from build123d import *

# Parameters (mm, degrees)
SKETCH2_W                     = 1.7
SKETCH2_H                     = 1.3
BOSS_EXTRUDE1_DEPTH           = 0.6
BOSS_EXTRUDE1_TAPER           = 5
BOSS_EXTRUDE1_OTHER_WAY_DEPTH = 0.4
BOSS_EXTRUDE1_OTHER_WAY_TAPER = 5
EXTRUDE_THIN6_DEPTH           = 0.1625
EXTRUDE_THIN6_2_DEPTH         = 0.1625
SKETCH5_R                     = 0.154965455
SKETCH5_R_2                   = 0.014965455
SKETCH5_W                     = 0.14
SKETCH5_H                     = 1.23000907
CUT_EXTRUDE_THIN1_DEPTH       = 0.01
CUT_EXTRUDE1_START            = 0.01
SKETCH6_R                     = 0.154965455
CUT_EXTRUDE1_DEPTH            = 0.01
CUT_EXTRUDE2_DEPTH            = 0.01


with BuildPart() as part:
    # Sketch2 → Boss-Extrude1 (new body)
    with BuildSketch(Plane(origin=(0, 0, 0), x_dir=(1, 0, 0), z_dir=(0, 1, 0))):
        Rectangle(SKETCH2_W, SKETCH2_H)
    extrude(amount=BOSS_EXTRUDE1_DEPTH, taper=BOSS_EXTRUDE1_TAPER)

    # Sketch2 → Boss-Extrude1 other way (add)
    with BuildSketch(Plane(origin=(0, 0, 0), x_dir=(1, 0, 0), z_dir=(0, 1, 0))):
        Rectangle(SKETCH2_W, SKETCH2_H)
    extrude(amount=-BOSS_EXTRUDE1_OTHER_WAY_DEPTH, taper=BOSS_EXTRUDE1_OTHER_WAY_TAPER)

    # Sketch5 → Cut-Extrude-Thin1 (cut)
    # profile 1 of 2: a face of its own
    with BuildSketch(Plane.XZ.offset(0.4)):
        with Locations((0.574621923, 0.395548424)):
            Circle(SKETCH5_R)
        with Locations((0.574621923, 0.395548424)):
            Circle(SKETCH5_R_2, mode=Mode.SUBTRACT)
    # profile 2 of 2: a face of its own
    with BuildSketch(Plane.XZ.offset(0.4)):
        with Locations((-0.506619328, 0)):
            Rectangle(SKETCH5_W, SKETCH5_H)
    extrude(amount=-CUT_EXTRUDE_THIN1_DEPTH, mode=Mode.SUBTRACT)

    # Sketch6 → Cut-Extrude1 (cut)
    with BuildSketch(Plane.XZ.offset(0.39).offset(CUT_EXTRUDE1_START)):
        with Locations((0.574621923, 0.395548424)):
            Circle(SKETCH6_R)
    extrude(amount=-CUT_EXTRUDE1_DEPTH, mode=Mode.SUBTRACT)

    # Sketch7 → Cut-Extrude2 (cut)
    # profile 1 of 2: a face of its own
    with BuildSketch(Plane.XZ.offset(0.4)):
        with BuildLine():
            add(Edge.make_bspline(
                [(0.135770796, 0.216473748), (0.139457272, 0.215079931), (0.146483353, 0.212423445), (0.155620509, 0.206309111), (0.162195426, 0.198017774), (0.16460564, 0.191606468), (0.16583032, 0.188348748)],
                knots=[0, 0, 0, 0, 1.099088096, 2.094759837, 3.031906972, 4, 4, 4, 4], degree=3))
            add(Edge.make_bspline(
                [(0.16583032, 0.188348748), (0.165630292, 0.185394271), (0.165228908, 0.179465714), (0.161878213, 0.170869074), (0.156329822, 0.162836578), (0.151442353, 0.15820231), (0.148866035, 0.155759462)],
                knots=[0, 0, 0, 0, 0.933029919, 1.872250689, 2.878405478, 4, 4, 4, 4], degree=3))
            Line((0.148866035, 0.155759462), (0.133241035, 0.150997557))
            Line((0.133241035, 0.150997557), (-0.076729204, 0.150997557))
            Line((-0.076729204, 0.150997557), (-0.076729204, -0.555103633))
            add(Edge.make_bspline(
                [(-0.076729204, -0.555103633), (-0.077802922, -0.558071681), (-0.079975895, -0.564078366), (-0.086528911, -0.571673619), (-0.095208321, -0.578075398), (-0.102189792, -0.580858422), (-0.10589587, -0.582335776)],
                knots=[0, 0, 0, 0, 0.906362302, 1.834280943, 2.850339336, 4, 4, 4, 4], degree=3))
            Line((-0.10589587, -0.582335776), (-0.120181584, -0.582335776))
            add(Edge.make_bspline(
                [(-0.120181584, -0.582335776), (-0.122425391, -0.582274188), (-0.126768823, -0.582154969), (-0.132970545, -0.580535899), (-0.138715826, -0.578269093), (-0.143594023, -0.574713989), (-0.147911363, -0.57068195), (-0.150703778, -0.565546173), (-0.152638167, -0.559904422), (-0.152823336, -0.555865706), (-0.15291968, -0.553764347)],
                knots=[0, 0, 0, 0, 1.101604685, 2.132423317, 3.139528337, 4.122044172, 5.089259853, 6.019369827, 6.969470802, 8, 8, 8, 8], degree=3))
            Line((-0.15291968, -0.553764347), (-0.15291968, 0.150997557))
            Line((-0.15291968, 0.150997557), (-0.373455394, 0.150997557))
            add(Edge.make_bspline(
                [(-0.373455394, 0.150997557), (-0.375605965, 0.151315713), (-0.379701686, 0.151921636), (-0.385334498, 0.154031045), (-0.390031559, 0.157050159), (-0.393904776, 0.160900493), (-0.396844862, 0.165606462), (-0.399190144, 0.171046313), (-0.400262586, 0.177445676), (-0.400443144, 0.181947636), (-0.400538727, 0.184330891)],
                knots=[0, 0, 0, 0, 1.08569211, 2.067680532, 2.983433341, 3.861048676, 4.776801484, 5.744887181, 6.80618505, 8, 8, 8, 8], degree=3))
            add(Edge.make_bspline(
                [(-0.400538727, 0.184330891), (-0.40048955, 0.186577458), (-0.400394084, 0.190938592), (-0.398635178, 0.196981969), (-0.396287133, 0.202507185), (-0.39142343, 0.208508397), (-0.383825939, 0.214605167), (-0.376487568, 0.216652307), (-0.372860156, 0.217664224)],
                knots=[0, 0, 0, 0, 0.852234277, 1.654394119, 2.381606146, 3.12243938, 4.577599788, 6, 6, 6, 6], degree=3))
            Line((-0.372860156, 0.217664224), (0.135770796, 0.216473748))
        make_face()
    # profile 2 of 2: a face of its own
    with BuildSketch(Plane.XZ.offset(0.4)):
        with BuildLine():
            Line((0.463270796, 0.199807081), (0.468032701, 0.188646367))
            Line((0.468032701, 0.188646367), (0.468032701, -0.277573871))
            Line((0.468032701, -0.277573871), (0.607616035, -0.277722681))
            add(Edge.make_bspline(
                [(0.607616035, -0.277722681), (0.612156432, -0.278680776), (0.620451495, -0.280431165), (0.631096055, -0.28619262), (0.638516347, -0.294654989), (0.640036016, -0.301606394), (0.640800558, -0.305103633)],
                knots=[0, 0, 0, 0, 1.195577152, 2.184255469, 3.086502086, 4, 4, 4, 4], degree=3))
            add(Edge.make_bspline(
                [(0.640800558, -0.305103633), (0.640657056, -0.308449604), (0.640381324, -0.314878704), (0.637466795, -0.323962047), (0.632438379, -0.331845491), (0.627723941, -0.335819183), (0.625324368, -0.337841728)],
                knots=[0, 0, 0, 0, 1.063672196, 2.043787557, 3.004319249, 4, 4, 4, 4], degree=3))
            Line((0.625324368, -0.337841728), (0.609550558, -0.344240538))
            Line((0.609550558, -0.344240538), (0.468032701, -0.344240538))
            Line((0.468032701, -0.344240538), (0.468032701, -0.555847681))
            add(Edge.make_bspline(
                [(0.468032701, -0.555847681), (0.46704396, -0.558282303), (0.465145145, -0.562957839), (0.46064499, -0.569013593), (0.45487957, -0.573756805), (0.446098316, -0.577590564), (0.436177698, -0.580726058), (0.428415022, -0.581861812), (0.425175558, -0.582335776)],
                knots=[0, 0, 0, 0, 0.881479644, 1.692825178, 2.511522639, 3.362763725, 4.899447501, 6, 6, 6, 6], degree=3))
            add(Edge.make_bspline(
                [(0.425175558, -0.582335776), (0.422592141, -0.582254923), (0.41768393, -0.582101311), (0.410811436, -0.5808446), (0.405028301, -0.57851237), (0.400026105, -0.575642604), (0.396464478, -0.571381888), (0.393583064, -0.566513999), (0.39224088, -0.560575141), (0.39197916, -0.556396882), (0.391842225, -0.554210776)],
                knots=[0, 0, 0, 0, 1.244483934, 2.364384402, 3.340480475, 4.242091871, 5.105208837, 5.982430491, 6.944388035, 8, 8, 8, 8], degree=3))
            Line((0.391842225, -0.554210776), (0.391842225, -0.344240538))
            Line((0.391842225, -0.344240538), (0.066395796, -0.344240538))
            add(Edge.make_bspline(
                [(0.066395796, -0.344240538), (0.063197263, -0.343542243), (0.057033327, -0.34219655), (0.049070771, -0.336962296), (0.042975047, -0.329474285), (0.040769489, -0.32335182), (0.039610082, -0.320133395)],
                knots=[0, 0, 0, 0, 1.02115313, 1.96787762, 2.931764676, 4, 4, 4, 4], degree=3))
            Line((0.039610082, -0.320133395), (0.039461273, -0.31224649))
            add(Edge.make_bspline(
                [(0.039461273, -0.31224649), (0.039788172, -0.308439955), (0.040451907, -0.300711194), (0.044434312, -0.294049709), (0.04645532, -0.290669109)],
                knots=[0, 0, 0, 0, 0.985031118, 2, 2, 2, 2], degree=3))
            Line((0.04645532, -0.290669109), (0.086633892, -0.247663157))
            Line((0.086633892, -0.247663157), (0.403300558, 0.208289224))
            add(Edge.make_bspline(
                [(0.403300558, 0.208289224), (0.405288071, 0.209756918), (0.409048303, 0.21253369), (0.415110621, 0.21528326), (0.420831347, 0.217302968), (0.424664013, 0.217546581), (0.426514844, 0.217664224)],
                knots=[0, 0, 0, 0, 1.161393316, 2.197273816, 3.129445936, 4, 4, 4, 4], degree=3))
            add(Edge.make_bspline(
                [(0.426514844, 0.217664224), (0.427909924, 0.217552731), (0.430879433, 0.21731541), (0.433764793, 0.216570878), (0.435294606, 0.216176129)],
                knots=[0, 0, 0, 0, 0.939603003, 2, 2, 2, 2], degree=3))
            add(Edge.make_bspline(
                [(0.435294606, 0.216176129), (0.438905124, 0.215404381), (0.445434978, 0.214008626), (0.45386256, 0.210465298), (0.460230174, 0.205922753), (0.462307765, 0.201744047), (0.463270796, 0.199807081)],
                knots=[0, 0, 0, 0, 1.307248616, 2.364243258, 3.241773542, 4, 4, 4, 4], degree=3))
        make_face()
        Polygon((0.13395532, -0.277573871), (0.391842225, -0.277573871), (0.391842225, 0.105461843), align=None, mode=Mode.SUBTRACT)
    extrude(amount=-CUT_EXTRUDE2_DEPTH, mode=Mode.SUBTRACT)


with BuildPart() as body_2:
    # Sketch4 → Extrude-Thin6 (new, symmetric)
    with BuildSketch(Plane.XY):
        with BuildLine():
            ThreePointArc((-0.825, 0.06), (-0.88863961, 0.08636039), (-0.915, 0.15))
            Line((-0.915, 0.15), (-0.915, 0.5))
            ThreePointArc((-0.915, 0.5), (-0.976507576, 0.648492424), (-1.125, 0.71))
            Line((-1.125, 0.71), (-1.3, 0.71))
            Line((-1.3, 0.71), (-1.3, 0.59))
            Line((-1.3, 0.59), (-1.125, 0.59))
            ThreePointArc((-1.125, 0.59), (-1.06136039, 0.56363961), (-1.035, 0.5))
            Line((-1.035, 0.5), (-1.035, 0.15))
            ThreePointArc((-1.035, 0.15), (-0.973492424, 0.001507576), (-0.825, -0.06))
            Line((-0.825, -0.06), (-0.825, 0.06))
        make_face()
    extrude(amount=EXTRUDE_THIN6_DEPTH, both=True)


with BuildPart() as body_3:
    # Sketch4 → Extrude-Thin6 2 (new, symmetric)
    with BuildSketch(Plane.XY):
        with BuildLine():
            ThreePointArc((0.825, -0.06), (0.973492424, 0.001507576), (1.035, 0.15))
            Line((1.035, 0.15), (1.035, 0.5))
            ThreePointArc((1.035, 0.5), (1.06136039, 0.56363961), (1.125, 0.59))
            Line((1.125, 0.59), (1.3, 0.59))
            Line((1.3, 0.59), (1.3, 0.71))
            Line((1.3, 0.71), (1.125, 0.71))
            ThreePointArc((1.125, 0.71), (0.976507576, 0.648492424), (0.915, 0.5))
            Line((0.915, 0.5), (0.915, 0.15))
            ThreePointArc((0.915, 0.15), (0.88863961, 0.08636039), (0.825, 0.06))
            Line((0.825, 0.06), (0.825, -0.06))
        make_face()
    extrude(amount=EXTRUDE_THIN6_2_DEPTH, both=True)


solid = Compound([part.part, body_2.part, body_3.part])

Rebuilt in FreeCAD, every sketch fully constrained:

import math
import FreeCAD as App
import Part
import Sketcher

V = App.Vector
Q = App.Units.Quantity


def add_polygon(sketch, points):
    """Adds a closed chain of lines whose ends are joined by coincident constraints."""
    first, n = sketch.GeometryCount, len(points)
    for a, b in zip(points, points[1:] + points[:1]):
        sketch.addGeometry(Part.LineSegment(App.Vector(*a, 0), App.Vector(*b, 0)), False)
    for i in range(n):
        sketch.addConstraint(Sketcher.Constraint("Coincident", first + i, 2, first + (i + 1) % n, 1))

doc = App.newDocument("Part")
body = doc.addObject("PartDesign::Body", "Body")

# Sketch on XZ plane
sketch1 = body.newObject("Sketcher::SketchObject", "Sketch")
sketch1.AttachmentSupport = (doc.getObject("XZ_Plane"), [""])
sketch1.MapMode = "FlatFace"
add_polygon(sketch1, [(-0.85, -0.65), (-0.85, 0.65), (0.85, 0.65), (0.85, -0.65)])  # lines 0-3
sketch1.addConstraint([
    Sketcher.Constraint("Vertical", 0),
    Sketcher.Constraint("Horizontal", 1),
    Sketcher.Constraint("Vertical", 2),
    Sketcher.Constraint("Horizontal", 3),
    Sketcher.Constraint("Symmetric", 0, 2, 2, 2, -1, 1),
    Sketcher.Constraint("DistanceX", 1, 1, 1, 2, Q("1.7 mm")),
    Sketcher.Constraint("DistanceY", 0, 1, 0, 2, Q("1.3 mm")),
])
pad1 = body.newObject("PartDesign::Pad", "Pad")
pad1.Profile = sketch1
pad1.Length = 0.6
pad1.Reversed = True
pad1.TaperAngle = -5

# Sketch on XZ plane
sketch2 = body.newObject("Sketcher::SketchObject", "Sketch001")
sketch2.AttachmentSupport = (doc.getObject("XZ_Plane"), [""])
sketch2.MapMode = "FlatFace"
add_polygon(sketch2, [(-0.85, -0.65), (-0.85, 0.65), (0.85, 0.65), (0.85, -0.65)])  # lines 0-3
sketch2.addConstraint([
    Sketcher.Constraint("Vertical", 0),
    Sketcher.Constraint("Horizontal", 1),
    Sketcher.Constraint("Vertical", 2),
    Sketcher.Constraint("Horizontal", 3),
    Sketcher.Constraint("Symmetric", 0, 2, 2, 2, -1, 1),
    Sketcher.Constraint("DistanceX", 1, 1, 1, 2, Q("1.7 mm")),
    Sketcher.Constraint("DistanceY", 0, 1, 0, 2, Q("1.3 mm")),
])
pad2 = body.newObject("PartDesign::Pad", "Pad001")
pad2.Profile = sketch2
pad2.Length = 0.4
pad2.TaperAngle = -5

# Sketch on XZ plane
sketch3 = body.newObject("Sketcher::SketchObject", "Sketch002")
sketch3.AttachmentSupport = (doc.getObject("XZ_Plane"), [""])
sketch3.MapMode = "FlatFace"
sketch3.AttachmentOffset = App.Placement(V(0, 0, 0.4), App.Rotation())
sketch3.addGeometry(Part.Circle(V(0.574622, 0.395548, 0), V(0, 0, 1), 0.154965), False)  # 0
sketch3.addGeometry(Part.Circle(V(0.574622, 0.395548, 0), V(0, 0, 1), 0.014965), False)  # 1
add_polygon(sketch3, [(-0.576619, 0.615005), (-0.576619, -0.615005), (-0.436619, -0.615005), (-0.436619, 0.615005)])  # lines 2-5
sketch3.addConstraint([
    Sketcher.Constraint("Vertical", 2),
    Sketcher.Constraint("Horizontal", 3),
    Sketcher.Constraint("Vertical", 4),
    Sketcher.Constraint("Horizontal", 5),
    Sketcher.Constraint("Coincident", 1, 3, 0, 3),
    Sketcher.Constraint("DistanceX", 3, 1, 3, 2, Q("0.14 mm")),
    Sketcher.Constraint("Diameter", 0, Q("0.309931 mm")),
    Sketcher.Constraint("Diameter", 1, Q("0.029931 mm")),
    Sketcher.Constraint("DistanceY", 2, 2, 2, 1, Q("1.230009 mm")),
    Sketcher.Constraint("DistanceX", -1, 1, 0, 3, Q("0.574622 mm")),
    Sketcher.Constraint("DistanceY", -1, 1, 0, 3, Q("0.395548 mm")),
    Sketcher.Constraint("DistanceX", 2, 2, -1, 1, Q("0.576619 mm")),
    Sketcher.Constraint("DistanceY", 2, 2, -1, 1, Q("0.615005 mm")),
])
pocket1 = body.newObject("PartDesign::Pocket", "Pocket")
pocket1.Profile = sketch3
pocket1.Length = 0.01

# Sketch on XZ plane
sketch4 = body.newObject("Sketcher::SketchObject", "Sketch003")
sketch4.AttachmentSupport = (doc.getObject("XZ_Plane"), [""])
sketch4.MapMode = "FlatFace"
sketch4.AttachmentOffset = App.Placement(V(0, 0, 0.4), App.Rotation())
sketch4.addGeometry(Part.Circle(V(0.574622, 0.395548, 0), V(0, 0, 1), 0.154965), False)
sketch4.addConstraint([
    Sketcher.Constraint("Diameter", 0, Q("0.309931 mm")),
    Sketcher.Constraint("DistanceX", -1, 1, 0, 3, Q("0.574622 mm")),
    Sketcher.Constraint("DistanceY", -1, 1, 0, 3, Q("0.395548 mm")),
])
pocket2 = body.newObject("PartDesign::Pocket", "Pocket001")
pocket2.Profile = sketch4
pocket2.Length = 0.01

# Sketch on XZ plane
sketch5 = body.newObject("Sketcher::SketchObject", "Sketch004")
sketch5.AttachmentSupport = (doc.getObject("XZ_Plane"), [""])
sketch5.MapMode = "FlatFace"
sketch5.AttachmentOffset = App.Placement(V(0, 0, 0.4), App.Rotation())
sketch5.addGeometry(Part.BSplineCurve([V(0.135771, 0.216474, 0), V(0.139457, 0.21508, 0), V(0.146483, 0.212423, 0), V(0.155621, 0.206309, 0), V(0.162195, 0.198018, 0), V(0.164606, 0.191606, 0), V(0.16583, 0.188349, 0)], [4, 1, 1, 1, 4], [0, 1.099088096, 2.094759837, 3.031906972, 4], False, 3, [1, 1, 1, 1, 1, 1, 1], False), False)  # 0
sketch5.addGeometry(Part.LineSegment(V(0.135771, 0.216474, 0), V(-0.37286, 0.217664, 0)), False)  # 1
sketch5.addGeometry(Part.BSplineCurve([V(-0.400539, 0.184331, 0), V(-0.40049, 0.186577, 0), V(-0.400394, 0.190939, 0), V(-0.398635, 0.196982, 0), V(-0.396287, 0.202507, 0), V(-0.391423, 0.208508, 0), V(-0.383826, 0.214605, 0), V(-0.376488, 0.216652, 0), V(-0.37286, 0.217664, 0)], [4, 1, 1, 1, 1, 1, 4], [0, 0.852234277, 1.654394119, 2.381606146, 3.12243938, 4.577599788, 6], False, 3, [1, 1, 1, 1, 1, 1, 1, 1, 1], False), False)  # 2
sketch5.addGeometry(Part.BSplineCurve([V(-0.373455, 0.150998, 0), V(-0.375606, 0.151316, 0), V(-0.379702, 0.151922, 0), V(-0.385334, 0.154031, 0), V(-0.390032, 0.15705, 0), V(-0.393905, 0.1609, 0), V(-0.396845, 0.165606, 0), V(-0.39919, 0.171046, 0), V(-0.400263, 0.177446, 0), V(-0.400443, 0.181948, 0), V(-0.400539, 0.184331, 0)], [4, 1, 1, 1, 1, 1, 1, 1, 4], [0, 1.08569211, 2.067680532, 2.983433341, 3.861048676, 4.776801484, 5.744887181, 6.80618505, 8], False, 3, [1, 1, 1, 1, 1, 1, 1, 1, 1, 1, 1], False), False)  # 3
sketch5.addGeometry(Part.LineSegment(V(-0.373455, 0.150998, 0), V(-0.15292, 0.150998, 0)), False)  # 4
sketch5.addGeometry(Part.LineSegment(V(-0.15292, 0.150998, 0), V(-0.15292, -0.553764, 0)), False)  # 5
sketch5.addGeometry(Part.BSplineCurve([V(-0.120182, -0.582336, 0), V(-0.122425, -0.582274, 0), V(-0.126769, -0.582155, 0), V(-0.132971, -0.580536, 0), V(-0.138716, -0.578269, 0), V(-0.143594, -0.574714, 0), V(-0.147911, -0.570682, 0), V(-0.150704, -0.565546, 0), V(-0.152638, -0.559904, 0), V(-0.152823, -0.555866, 0), V(-0.15292, -0.553764, 0)], [4, 1, 1, 1, 1, 1, 1, 1, 4], [0, 1.101604685, 2.132423317, 3.139528337, 4.122044172, 5.089259853, 6.019369827, 6.969470802, 8], False, 3, [1, 1, 1, 1, 1, 1, 1, 1, 1, 1, 1], False), False)  # 6
sketch5.addGeometry(Part.LineSegment(V(-0.120182, -0.582336, 0), V(-0.105896, -0.582336, 0)), False)  # 7
sketch5.addGeometry(Part.BSplineCurve([V(-0.076729, -0.555104, 0), V(-0.077803, -0.558072, 0), V(-0.079976, -0.564078, 0), V(-0.086529, -0.571674, 0), V(-0.095208, -0.578075, 0), V(-0.10219, -0.580858, 0), V(-0.105896, -0.582336, 0)], [4, 1, 1, 1, 4], [0, 0.906362302, 1.834280943, 2.850339336, 4], False, 3, [1, 1, 1, 1, 1, 1, 1], False), False)  # 8
sketch5.addGeometry(Part.LineSegment(V(-0.076729, -0.555104, 0), V(-0.076729, 0.150998, 0)), False)  # 9
sketch5.addGeometry(Part.LineSegment(V(-0.076729, 0.150998, 0), V(0.133241, 0.150998, 0)), False)  # 10
sketch5.addGeometry(Part.LineSegment(V(0.133241, 0.150998, 0), V(0.148866, 0.155759, 0)), False)  # 11
sketch5.addGeometry(Part.BSplineCurve([V(0.16583, 0.188349, 0), V(0.16563, 0.185394, 0), V(0.165229, 0.179466, 0), V(0.161878, 0.170869, 0), V(0.15633, 0.162837, 0), V(0.151442, 0.158202, 0), V(0.148866, 0.155759, 0)], [4, 1, 1, 1, 4], [0, 0.933029919, 1.872250689, 2.878405478, 4], False, 3, [1, 1, 1, 1, 1, 1, 1], False), False)  # 12
sketch5.addGeometry(Part.LineSegment(V(0.468033, 0.188646, 0), V(0.463271, 0.199807, 0)), False)  # 13
sketch5.addGeometry(Part.BSplineCurve([V(0.435295, 0.216176, 0), V(0.438905, 0.215404, 0), V(0.445435, 0.214009, 0), V(0.453863, 0.210465, 0), V(0.46023, 0.205923, 0), V(0.462308, 0.201744, 0), V(0.463271, 0.199807, 0)], [4, 1, 1, 1, 4], [0, 1.307248616, 2.364243258, 3.241773542, 4], False, 3, [1, 1, 1, 1, 1, 1, 1], False), False)  # 14
sketch5.addGeometry(Part.BSplineCurve([V(0.426515, 0.217664, 0), V(0.42791, 0.217553, 0), V(0.430879, 0.217315, 0), V(0.433765, 0.216571, 0), V(0.435295, 0.216176, 0)], [4, 1, 4], [0, 0.939603003, 2], False, 3, [1, 1, 1, 1, 1], False), False)  # 15
sketch5.addGeometry(Part.BSplineCurve([V(0.403301, 0.208289, 0), V(0.405288, 0.209757, 0), V(0.409048, 0.212534, 0), V(0.415111, 0.215283, 0), V(0.420831, 0.217303, 0), V(0.424664, 0.217547, 0), V(0.426515, 0.217664, 0)], [4, 1, 1, 1, 4], [0, 1.161393316, 2.197273816, 3.129445936, 4], False, 3, [1, 1, 1, 1, 1, 1, 1], False), False)  # 16
sketch5.addGeometry(Part.LineSegment(V(0.403301, 0.208289, 0), V(0.086634, -0.247663, 0)), False)  # 17
sketch5.addGeometry(Part.LineSegment(V(0.086634, -0.247663, 0), V(0.046455, -0.290669, 0)), False)  # 18
sketch5.addGeometry(Part.BSplineCurve([V(0.039461, -0.312246, 0), V(0.039788, -0.30844, 0), V(0.040452, -0.300711, 0), V(0.044434, -0.29405, 0), V(0.046455, -0.290669, 0)], [4, 1, 4], [0, 0.985031118, 2], False, 3, [1, 1, 1, 1, 1], False), False)  # 19
sketch5.addGeometry(Part.LineSegment(V(0.039461, -0.312246, 0), V(0.03961, -0.320133, 0)), False)  # 20
sketch5.addGeometry(Part.BSplineCurve([V(0.066396, -0.344241, 0), V(0.063197, -0.343542, 0), V(0.057033, -0.342197, 0), V(0.049071, -0.336962, 0), V(0.042975, -0.329474, 0), V(0.040769, -0.323352, 0), V(0.03961, -0.320133, 0)], [4, 1, 1, 1, 4], [0, 1.02115313, 1.96787762, 2.931764676, 4], False, 3, [1, 1, 1, 1, 1, 1, 1], False), False)  # 21
sketch5.addGeometry(Part.LineSegment(V(0.066396, -0.344241, 0), V(0.391842, -0.344241, 0)), False)  # 22
sketch5.addGeometry(Part.LineSegment(V(0.391842, -0.344241, 0), V(0.391842, -0.554211, 0)), False)  # 23
sketch5.addGeometry(Part.BSplineCurve([V(0.425176, -0.582336, 0), V(0.422592, -0.582255, 0), V(0.417684, -0.582101, 0), V(0.410811, -0.580845, 0), V(0.405028, -0.578512, 0), V(0.400026, -0.575643, 0), V(0.396464, -0.571382, 0), V(0.393583, -0.566514, 0), V(0.392241, -0.560575, 0), V(0.391979, -0.556397, 0), V(0.391842, -0.554211, 0)], [4, 1, 1, 1, 1, 1, 1, 1, 4], [0, 1.244483934, 2.364384402, 3.340480475, 4.242091871, 5.105208837, 5.982430491, 6.944388035, 8], False, 3, [1, 1, 1, 1, 1, 1, 1, 1, 1, 1, 1], False), False)  # 24
sketch5.addGeometry(Part.BSplineCurve([V(0.468033, -0.555848, 0), V(0.467044, -0.558282, 0), V(0.465145, -0.562958, 0), V(0.460645, -0.569014, 0), V(0.45488, -0.573757, 0), V(0.446098, -0.577591, 0), V(0.436178, -0.580726, 0), V(0.428415, -0.581862, 0), V(0.425176, -0.582336, 0)], [4, 1, 1, 1, 1, 1, 4], [0, 0.881479644, 1.692825178, 2.511522639, 3.362763725, 4.899447501, 6], False, 3, [1, 1, 1, 1, 1, 1, 1, 1, 1], False), False)  # 25
sketch5.addGeometry(Part.LineSegment(V(0.468033, -0.555848, 0), V(0.468033, -0.344241, 0)), False)  # 26
sketch5.addGeometry(Part.LineSegment(V(0.468033, -0.344241, 0), V(0.609551, -0.344241, 0)), False)  # 27
sketch5.addGeometry(Part.LineSegment(V(0.609551, -0.344241, 0), V(0.625324, -0.337842, 0)), False)  # 28
sketch5.addGeometry(Part.BSplineCurve([V(0.640801, -0.305104, 0), V(0.640657, -0.30845, 0), V(0.640381, -0.314879, 0), V(0.637467, -0.323962, 0), V(0.632438, -0.331845, 0), V(0.627724, -0.335819, 0), V(0.625324, -0.337842, 0)], [4, 1, 1, 1, 4], [0, 1.063672196, 2.043787557, 3.004319249, 4], False, 3, [1, 1, 1, 1, 1, 1, 1], False), False)  # 29
sketch5.addGeometry(Part.BSplineCurve([V(0.607616, -0.277723, 0), V(0.612156, -0.278681, 0), V(0.620451, -0.280431, 0), V(0.631096, -0.286193, 0), V(0.638516, -0.294655, 0), V(0.640036, -0.301606, 0), V(0.640801, -0.305104, 0)], [4, 1, 1, 1, 4], [0, 1.195577152, 2.184255469, 3.086502086, 4], False, 3, [1, 1, 1, 1, 1, 1, 1], False), False)  # 30
sketch5.addGeometry(Part.LineSegment(V(0.607616, -0.277723, 0), V(0.468033, -0.277574, 0)), False)  # 31
sketch5.addGeometry(Part.LineSegment(V(0.468033, -0.277574, 0), V(0.468033, 0.188646, 0)), False)  # 32
add_polygon(sketch5, [(0.133955, -0.277574), (0.391842, 0.105462), (0.391842, -0.277574)])  # lines 33-35
sketch5.addConstraint([
    Sketcher.Constraint("Block", 0),
    Sketcher.Constraint("Block", 2),
    Sketcher.Constraint("Block", 3),
    Sketcher.Constraint("Block", 6),
    Sketcher.Constraint("Block", 8),
    Sketcher.Constraint("Block", 12),
    Sketcher.Constraint("Block", 14),
    Sketcher.Constraint("Block", 15),
    Sketcher.Constraint("Block", 16),
    Sketcher.Constraint("Block", 19),
    Sketcher.Constraint("Block", 21),
    Sketcher.Constraint("Block", 24),
    Sketcher.Constraint("Block", 25),
    Sketcher.Constraint("Block", 29),
    Sketcher.Constraint("Block", 30),
    Sketcher.Constraint("Coincident", 0, 1, 1, 1),
    Sketcher.Constraint("Coincident", 1, 2, 2, 2),
    Sketcher.Constraint("Coincident", 3, 1, 4, 1),
    Sketcher.Constraint("Coincident", 4, 2, 5, 1),
    Sketcher.Constraint("Coincident", 5, 2, 6, 2),
    Sketcher.Constraint("Coincident", 6, 1, 7, 1),
    Sketcher.Constraint("Coincident", 7, 2, 8, 2),
    Sketcher.Constraint("Coincident", 8, 1, 9, 1),
    Sketcher.Constraint("Coincident", 9, 2, 10, 1),
    Sketcher.Constraint("Coincident", 10, 2, 11, 1),
    Sketcher.Constraint("Coincident", 11, 2, 12, 2),
    Sketcher.Constraint("Coincident", 13, 2, 14, 2),
    Sketcher.Constraint("Coincident", 16, 1, 17, 1),
    Sketcher.Constraint("Coincident", 17, 2, 18, 1),
    Sketcher.Constraint("Coincident", 18, 2, 19, 2),
    Sketcher.Constraint("Coincident", 19, 1, 20, 1),
    Sketcher.Constraint("Coincident", 20, 2, 21, 2),
    Sketcher.Constraint("Coincident", 21, 1, 22, 1),
    Sketcher.Constraint("Coincident", 22, 2, 23, 1),
    Sketcher.Constraint("Coincident", 23, 2, 24, 2),
    Sketcher.Constraint("Coincident", 25, 1, 26, 1),
    Sketcher.Constraint("Coincident", 26, 2, 27, 1),
    Sketcher.Constraint("Coincident", 27, 2, 28, 1),
    Sketcher.Constraint("Coincident", 28, 2, 29, 2),
    Sketcher.Constraint("Coincident", 30, 1, 31, 1),
    Sketcher.Constraint("Coincident", 31, 2, 32, 1),
    Sketcher.Constraint("Coincident", 32, 2, 13, 1),
    Sketcher.Constraint("Horizontal", 4),
    Sketcher.Constraint("Vertical", 5),
    Sketcher.Constraint("Vertical", 9),
    Sketcher.Constraint("Horizontal", 10),
    Sketcher.Constraint("Horizontal", 22),
    Sketcher.Constraint("Vertical", 23),
    Sketcher.Constraint("Vertical", 26),
    Sketcher.Constraint("Horizontal", 27),
    Sketcher.Constraint("Vertical", 32),
    Sketcher.Constraint("Vertical", 34),
    Sketcher.Constraint("Horizontal", 35),
    Sketcher.Constraint("DistanceY", 9, 1, 9, 2, Q("0.706101 mm")),
    Sketcher.Constraint("DistanceX", 10, 1, 10, 2, Q("0.20997 mm")),
    Sketcher.Constraint("DistanceY", 32, 1, 32, 2, Q("0.46622 mm")),
    Sketcher.Constraint("DistanceY", 5, 2, 17, 2, Q("0.306101 mm")),
    Sketcher.Constraint("DistanceX", 17, 2, 26, 2, Q("0.381399 mm")),
    Sketcher.Constraint("DistanceY", 27, 2, 28, 2, Q("0.006399 mm")),
    Sketcher.Constraint("DistanceX", 10, 2, 33, 2, Q("0.258601 mm")),
    Sketcher.Constraint("DistanceX", 18, 2, 35, 2, Q("0.0875 mm")),
    Sketcher.Constraint("Distance", 33, Q("0.46176 mm")),
    Sketcher.Constraint("DistanceX", 27, 1, 27, 2, Q("0.141518 mm")),
    Sketcher.Constraint("DistanceY", -1, 1, 33, 2, Q("0.105462 mm")),
    Sketcher.Constraint("DistanceX", 22, 2, 31, 2, Q("0.07619 mm")),
    Sketcher.Constraint("DistanceY", 32, 2, 13, 2, Q("0.011161 mm")),
])
pocket3 = body.newObject("PartDesign::Pocket", "Pocket002")
pocket3.Profile = sketch5
pocket3.Length = 0.01
body2 = doc.addObject("PartDesign::Body", "Body001")

# Sketch on XY plane
sketch6 = body2.newObject("Sketcher::SketchObject", "Sketch005")
sketch6.AttachmentSupport = (doc.getObject("XY_Plane001"), [""])
sketch6.MapMode = "FlatFace"
sketch6.addGeometry([
    Part.ArcOfCircle(Part.Circle(V(-0.825, 0.15, 0), V(0, 0, 1), 0.09), math.radians(-179.999999), math.radians(-90.000001)),  # 0
    Part.LineSegment(V(-0.915, 0.15, 0), V(-0.915, 0.5, 0)),  # 1
    Part.ArcOfCircle(Part.Circle(V(-1.125, 0.5, 0), V(0, 0, 1), 0.21), math.radians(0), math.radians(90)),  # 2
    Part.LineSegment(V(-1.125, 0.71, 0), V(-1.3, 0.71, 0)),  # 3
    Part.LineSegment(V(-1.3, 0.71, 0), V(-1.3, 0.59, 0)),  # 4
    Part.LineSegment(V(-1.3, 0.59, 0), V(-1.125, 0.59, 0)),  # 5
    Part.ArcOfCircle(Part.Circle(V(-1.125, 0.5, 0), V(0, 0, 1), 0.09), math.radians(0.000001), math.radians(89.999999)),  # 6
    Part.LineSegment(V(-1.035, 0.5, 0), V(-1.035, 0.15, 0)),  # 7
    Part.ArcOfCircle(Part.Circle(V(-0.825, 0.15, 0), V(0, 0, 1), 0.21), math.radians(180), math.radians(270)),  # 8
    Part.LineSegment(V(-0.825, -0.06, 0), V(-0.825, 0.06, 0)),  # 9
], False)
sketch6.addConstraint([
    Sketcher.Constraint("Tangent", 0, 1, 1, 1),
    Sketcher.Constraint("Tangent", 1, 2, 2, 1),
    Sketcher.Constraint("Tangent", 2, 2, 3, 1),
    Sketcher.Constraint("Coincident", 3, 2, 4, 1),
    Sketcher.Constraint("Coincident", 4, 2, 5, 1),
    Sketcher.Constraint("Tangent", 5, 2, 6, 2),
    Sketcher.Constraint("Tangent", 6, 1, 7, 1),
    Sketcher.Constraint("Tangent", 7, 2, 8, 1),
    Sketcher.Constraint("Coincident", 8, 2, 9, 1),
    Sketcher.Constraint("Coincident", 9, 2, 0, 2),
    Sketcher.Constraint("Vertical", 1),
    Sketcher.Constraint("Horizontal", 3),
    Sketcher.Constraint("Vertical", 4),
    Sketcher.Constraint("Horizontal", 5),
    Sketcher.Constraint("Vertical", 7),
    Sketcher.Constraint("Vertical", 9),
    Sketcher.Constraint("Coincident", 6, 3, 2, 3),
    Sketcher.Constraint("Coincident", 8, 3, 0, 3),
    Sketcher.Constraint("Equal", 0, 6),
    Sketcher.Constraint("Vertical", 0, 3, 8, 2),
    Sketcher.Constraint("Radius", 0, Q("0.09 mm")),
    Sketcher.Constraint("Radius", 2, Q("0.21 mm")),
    Sketcher.Constraint("DistanceY", 1, 1, 1, 2, Q("0.35 mm")),
    Sketcher.Constraint("DistanceY", -1, 1, 2, 3, Q("0.5 mm")),
    Sketcher.Constraint("DistanceX", 3, 2, -1, 1, Q("1.3 mm")),
    Sketcher.Constraint("DistanceX", 3, 2, 3, 1, Q("0.175 mm")),
])
pad3 = body2.newObject("PartDesign::Pad", "Pad002")
pad3.Profile = sketch6
pad3.Length = 0.325
pad3.Midplane = True
body3 = doc.addObject("PartDesign::Body", "Body002")

# Sketch on XY plane
sketch7 = body3.newObject("Sketcher::SketchObject", "Sketch006")
sketch7.AttachmentSupport = (doc.getObject("XY_Plane002"), [""])
sketch7.MapMode = "FlatFace"
sketch7.addGeometry([
    Part.ArcOfCircle(Part.Circle(V(0.825, 0.15, 0), V(0, 0, 1), 0.21), math.radians(-90), math.radians(0)),  # 0
    Part.LineSegment(V(1.035, 0.15, 0), V(1.035, 0.5, 0)),  # 1
    Part.ArcOfCircle(Part.Circle(V(1.125, 0.5, 0), V(0, 0, 1), 0.09), math.radians(90.000001), math.radians(179.999999)),  # 2
    Part.LineSegment(V(1.125, 0.59, 0), V(1.3, 0.59, 0)),  # 3
    Part.LineSegment(V(1.3, 0.59, 0), V(1.3, 0.71, 0)),  # 4
    Part.LineSegment(V(1.3, 0.71, 0), V(1.125, 0.71, 0)),  # 5
    Part.ArcOfCircle(Part.Circle(V(1.125, 0.5, 0), V(0, 0, 1), 0.21), math.radians(90), math.radians(180)),  # 6
    Part.LineSegment(V(0.915, 0.5, 0), V(0.915, 0.15, 0)),  # 7
    Part.ArcOfCircle(Part.Circle(V(0.825, 0.15, 0), V(0, 0, 1), 0.09), math.radians(-89.999999), math.radians(-0.000001)),  # 8
    Part.LineSegment(V(0.825, 0.06, 0), V(0.825, -0.06, 0)),  # 9
], False)
sketch7.addConstraint([
    Sketcher.Constraint("Tangent", 0, 2, 1, 1),
    Sketcher.Constraint("Tangent", 1, 2, 2, 2),
    Sketcher.Constraint("Tangent", 2, 1, 3, 1),
    Sketcher.Constraint("Coincident", 3, 2, 4, 1),
    Sketcher.Constraint("Coincident", 4, 2, 5, 1),
    Sketcher.Constraint("Tangent", 5, 2, 6, 1),
    Sketcher.Constraint("Tangent", 6, 2, 7, 1),
    Sketcher.Constraint("Tangent", 7, 2, 8, 2),
    Sketcher.Constraint("Coincident", 8, 1, 9, 1),
    Sketcher.Constraint("Coincident", 9, 2, 0, 1),
    Sketcher.Constraint("Vertical", 1),
    Sketcher.Constraint("Horizontal", 3),
    Sketcher.Constraint("Vertical", 4),
    Sketcher.Constraint("Horizontal", 5),
    Sketcher.Constraint("Vertical", 7),
    Sketcher.Constraint("Vertical", 9),
    Sketcher.Constraint("Coincident", 6, 3, 2, 3),
    Sketcher.Constraint("Coincident", 8, 3, 0, 3),
    Sketcher.Constraint("Equal", 0, 6),
    Sketcher.Constraint("Vertical", 0, 3, 8, 1),
    Sketcher.Constraint("Radius", 0, Q("0.21 mm")),
    Sketcher.Constraint("Radius", 2, Q("0.09 mm")),
    Sketcher.Constraint("DistanceY", 1, 1, 1, 2, Q("0.35 mm")),
    Sketcher.Constraint("DistanceY", -1, 1, 2, 3, Q("0.5 mm")),
    Sketcher.Constraint("DistanceX", -1, 1, 3, 2, Q("1.3 mm")),
    Sketcher.Constraint("DistanceX", 3, 1, 3, 2, Q("0.175 mm")),
])
pad4 = body3.newObject("PartDesign::Pad", "Pad003")
pad4.Profile = sketch7
pad4.Length = 0.325
pad4.Midplane = True

doc.recompute()
